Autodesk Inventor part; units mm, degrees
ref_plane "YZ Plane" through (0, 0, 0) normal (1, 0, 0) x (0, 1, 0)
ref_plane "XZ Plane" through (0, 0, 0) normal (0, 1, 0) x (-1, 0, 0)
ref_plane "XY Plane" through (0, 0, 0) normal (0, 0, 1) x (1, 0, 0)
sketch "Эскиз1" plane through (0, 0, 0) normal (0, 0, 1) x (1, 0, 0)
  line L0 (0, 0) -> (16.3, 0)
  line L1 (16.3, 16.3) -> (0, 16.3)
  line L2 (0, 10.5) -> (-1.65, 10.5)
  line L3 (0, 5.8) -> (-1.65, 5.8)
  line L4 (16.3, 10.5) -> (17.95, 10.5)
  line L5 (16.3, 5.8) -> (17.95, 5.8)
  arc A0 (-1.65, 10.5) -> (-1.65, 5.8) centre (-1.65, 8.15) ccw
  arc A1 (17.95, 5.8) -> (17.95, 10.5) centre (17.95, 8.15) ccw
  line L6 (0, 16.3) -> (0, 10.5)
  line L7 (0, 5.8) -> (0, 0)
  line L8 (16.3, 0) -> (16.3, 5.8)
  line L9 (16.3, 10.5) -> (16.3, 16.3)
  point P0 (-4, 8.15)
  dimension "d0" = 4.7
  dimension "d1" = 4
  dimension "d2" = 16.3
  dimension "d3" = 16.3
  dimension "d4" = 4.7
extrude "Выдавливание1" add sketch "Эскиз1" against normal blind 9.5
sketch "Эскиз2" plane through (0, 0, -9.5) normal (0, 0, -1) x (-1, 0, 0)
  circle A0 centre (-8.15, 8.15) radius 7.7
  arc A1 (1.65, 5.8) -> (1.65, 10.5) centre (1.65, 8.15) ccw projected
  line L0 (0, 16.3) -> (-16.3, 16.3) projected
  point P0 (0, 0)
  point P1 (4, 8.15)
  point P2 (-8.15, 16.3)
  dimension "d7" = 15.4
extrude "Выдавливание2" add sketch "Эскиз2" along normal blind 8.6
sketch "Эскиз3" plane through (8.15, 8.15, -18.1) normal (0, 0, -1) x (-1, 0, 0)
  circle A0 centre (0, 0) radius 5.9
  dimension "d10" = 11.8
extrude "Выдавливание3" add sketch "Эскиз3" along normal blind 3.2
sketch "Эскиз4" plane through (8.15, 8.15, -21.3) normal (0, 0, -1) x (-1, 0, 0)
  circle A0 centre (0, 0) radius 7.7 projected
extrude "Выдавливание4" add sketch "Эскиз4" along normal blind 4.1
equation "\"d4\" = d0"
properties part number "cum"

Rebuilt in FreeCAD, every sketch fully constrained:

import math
import FreeCAD as App
import Part
import Sketcher
from FreeCAD import Vector
Q = App.Units.Quantity

doc = App.newDocument("Part")
body = doc.addObject("PartDesign::Body", "Body")

# Sketch on XY plane
sketch1 = body.newObject("Sketcher::SketchObject", "Sketch")
sketch1.AttachmentSupport = (doc.getObject("XY_Plane"), [""])
sketch1.MapMode = "FlatFace"
sketch1.addGeometry(Part.LineSegment(Vector(0, 5.8, 0), Vector(0, 0, 0)), False)
sketch1.addGeometry(Part.LineSegment(Vector(0, 0, 0), Vector(16.3, 0, 0)), False)
sketch1.addGeometry(Part.LineSegment(Vector(16.3, 0, 0), Vector(16.3, 5.8, 0)), False)
sketch1.addGeometry(Part.LineSegment(Vector(16.3, 5.8, 0), Vector(17.95, 5.8, 0)), False)
sketch1.addGeometry(Part.ArcOfCircle(Part.Circle(Vector(17.95, 8.15, 0), Vector(0, 0, 1), 2.35), math.radians(-90), math.radians(90)), False)
sketch1.addGeometry(Part.LineSegment(Vector(17.95, 10.5, 0), Vector(16.3, 10.5, 0)), False)
sketch1.addGeometry(Part.LineSegment(Vector(16.3, 10.5, 0), Vector(16.3, 16.3, 0)), False)
sketch1.addGeometry(Part.LineSegment(Vector(16.3, 16.3, 0), Vector(0, 16.3, 0)), False)
sketch1.addGeometry(Part.LineSegment(Vector(0, 16.3, 0), Vector(0, 10.5, 0)), False)
sketch1.addGeometry(Part.LineSegment(Vector(0, 10.5, 0), Vector(-1.65, 10.5, 0)), False)
sketch1.addGeometry(Part.ArcOfCircle(Part.Circle(Vector(-1.65, 8.15, 0), Vector(0, 0, 1), 2.35), math.radians(90), math.radians(270)), False)
sketch1.addGeometry(Part.LineSegment(Vector(-1.65, 5.8, 0), Vector(0, 5.8, 0)), False)
sketch1.addConstraint(Sketcher.Constraint("Coincident", 0, 2, 1, 1))
sketch1.addConstraint(Sketcher.Constraint("Coincident", 1, 2, 2, 1))
sketch1.addConstraint(Sketcher.Constraint("Coincident", 2, 2, 3, 1))
sketch1.addConstraint(Sketcher.Constraint("Tangent", 3, 2, 4, 1))
sketch1.addConstraint(Sketcher.Constraint("Tangent", 4, 2, 5, 1))
sketch1.addConstraint(Sketcher.Constraint("Coincident", 5, 2, 6, 1))
sketch1.addConstraint(Sketcher.Constraint("Coincident", 6, 2, 7, 1))
sketch1.addConstraint(Sketcher.Constraint("Coincident", 7, 2, 8, 1))
sketch1.addConstraint(Sketcher.Constraint("Coincident", 8, 2, 9, 1))
sketch1.addConstraint(Sketcher.Constraint("Tangent", 9, 2, 10, 1))
sketch1.addConstraint(Sketcher.Constraint("Tangent", 10, 2, 11, 1))
sketch1.addConstraint(Sketcher.Constraint("Coincident", 11, 2, 0, 1))
sketch1.addConstraint(Sketcher.Constraint("Vertical", 0))
sketch1.addConstraint(Sketcher.Constraint("Horizontal", 1))
sketch1.addConstraint(Sketcher.Constraint("Vertical", 2))
sketch1.addConstraint(Sketcher.Constraint("Horizontal", 3))
sketch1.addConstraint(Sketcher.Constraint("Horizontal", 5))
sketch1.addConstraint(Sketcher.Constraint("Vertical", 6))
sketch1.addConstraint(Sketcher.Constraint("Horizontal", 7))
sketch1.addConstraint(Sketcher.Constraint("Vertical", 8))
sketch1.addConstraint(Sketcher.Constraint("Horizontal", 9))
sketch1.addConstraint(Sketcher.Constraint("Horizontal", 11))
sketch1.addConstraint(Sketcher.Constraint("Coincident", 0, 2, -1, 1))
sketch1.addConstraint(Sketcher.Constraint("Equal", 4, 10))
sketch1.addConstraint(Sketcher.Constraint("PointOnObject", 7, 2, -2))
sketch1.addConstraint(Sketcher.Constraint("Horizontal", 4, 3, 10, 3))
sketch1.addConstraint(Sketcher.Constraint("Vertical", 2, 2, 5, 2))
sketch1.addConstraint(Sketcher.Constraint("Equal", 5, 9))
sketch1.addConstraint(Sketcher.Constraint("Equal", 2, 6))
sketch1.addConstraint(Sketcher.Constraint("Radius", 4, Q("2.35 mm")))
sketch1.addConstraint(Sketcher.Constraint("DistanceX", 1, 1, 1, 2, Q("16.3 mm")))
sketch1.addConstraint(Sketcher.Constraint("DistanceY", -1, 1, 6, 2, Q("16.3 mm")))
sketch1.addConstraint(Sketcher.Constraint("DistanceX", 3, 1, 3, 2, Q("1.65 mm")))
pad1 = body.newObject("PartDesign::Pad", "Pad")
pad1.Profile = sketch1
pad1.Length = 9.5
pad1.Reversed = True

# Sketch on XY plane
sketch2 = body.newObject("Sketcher::SketchObject", "Sketch001")
sketch2.AttachmentSupport = (doc.getObject("XY_Plane"), [""])
sketch2.MapMode = "FlatFace"
sketch2.AttachmentOffset = App.Placement(Vector(0, 0, -9.5), App.Rotation())
sketch2.addGeometry(Part.Circle(Vector(8.15, 8.15, 0), Vector(0, 0, 1), 7.7), False)
sketch2.addConstraint(Sketcher.Constraint("Diameter", 0, Q("15.4 mm")))
sketch2.addConstraint(Sketcher.Constraint("DistanceX", -1, 1, 0, 3, Q("8.15 mm")))
sketch2.addConstraint(Sketcher.Constraint("DistanceY", -1, 1, 0, 3, Q("8.15 mm")))
pad2 = body.newObject("PartDesign::Pad", "Pad001")
pad2.Profile = sketch2
pad2.Length = 8.6
pad2.Reversed = True

# Sketch on XY plane
sketch3 = body.newObject("Sketcher::SketchObject", "Sketch002")
sketch3.AttachmentSupport = (doc.getObject("XY_Plane"), [""])
sketch3.MapMode = "FlatFace"
sketch3.AttachmentOffset = App.Placement(Vector(0, 0, -18.1), App.Rotation())
sketch3.addGeometry(Part.Circle(Vector(8.15, 8.15, 0), Vector(0, 0, 1), 5.9), False)
sketch3.addConstraint(Sketcher.Constraint("Diameter", 0, Q("11.8 mm")))
sketch3.addConstraint(Sketcher.Constraint("DistanceX", -1, 1, 0, 3, Q("8.15 mm")))
sketch3.addConstraint(Sketcher.Constraint("DistanceY", -1, 1, 0, 3, Q("8.15 mm")))
pad3 = body.newObject("PartDesign::Pad", "Pad002")
pad3.Profile = sketch3
pad3.Length = 3.2
pad3.Reversed = True

# Sketch on XY plane
sketch4 = body.newObject("Sketcher::SketchObject", "Sketch003")
sketch4.AttachmentSupport = (doc.getObject("XY_Plane"), [""])
sketch4.MapMode = "FlatFace"
sketch4.AttachmentOffset = App.Placement(Vector(0, 0, -21.3), App.Rotation())
sketch4.addGeometry(Part.Circle(Vector(8.15, 8.15, 0), Vector(0, 0, 1), 7.7), False)
sketch4.addConstraint(Sketcher.Constraint("Diameter", 0, Q("15.4 mm")))
sketch4.addConstraint(Sketcher.Constraint("DistanceX", -1, 1, 0, 3, Q("8.15 mm")))
sketch4.addConstraint(Sketcher.Constraint("DistanceY", -1, 1, 0, 3, Q("8.15 mm")))
pad4 = body.newObject("PartDesign::Pad", "Pad003")
pad4.Profile = sketch4
pad4.Length = 4.1
pad4.Reversed = True

doc.recompute()
